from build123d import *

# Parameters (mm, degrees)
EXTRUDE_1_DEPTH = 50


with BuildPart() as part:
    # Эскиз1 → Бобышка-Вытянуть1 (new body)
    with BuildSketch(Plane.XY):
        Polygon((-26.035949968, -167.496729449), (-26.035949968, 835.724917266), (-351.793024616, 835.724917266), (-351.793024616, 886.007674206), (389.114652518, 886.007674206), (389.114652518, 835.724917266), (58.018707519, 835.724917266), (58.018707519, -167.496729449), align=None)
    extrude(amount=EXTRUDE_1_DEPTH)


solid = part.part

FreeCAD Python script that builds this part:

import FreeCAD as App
import Part
import Sketcher
Q = App.Units.Quantity

doc = App.newDocument("Part")
params = doc.addObject("Spreadsheet::Sheet", "Params")
for row, (alias, value) in enumerate([
    ("pad1_length", "50 mm"),
], start=1):
    params.set(f"A{row}", alias)
    params.set(f"B{row}", "=" + value)
    params.setAlias(f"B{row}", alias)

body = doc.addObject("PartDesign::Body", "Body")

# Sketch on XY plane
sketch1 = body.newObject("Sketcher::SketchObject", "Sketch")
sketch1.AttachmentSupport = (doc.getObject("XY_Plane"), [""])
sketch1.MapMode = "FlatFace"
sketch1.addGeometry([
    Part.LineSegment(App.Vector(-26, 836, 0), App.Vector(-26, -167, 0)),  # 0
    Part.LineSegment(App.Vector(-26, -167, 0), App.Vector(58, -167, 0)),  # 1
    Part.LineSegment(App.Vector(58, -167, 0), App.Vector(58, 836, 0)),  # 2
    Part.LineSegment(App.Vector(58, 836, 0), App.Vector(389, 836, 0)),  # 3
    Part.LineSegment(App.Vector(389, 836, 0), App.Vector(389, 886, 0)),  # 4
    Part.LineSegment(App.Vector(389, 886, 0), App.Vector(-352, 886, 0)),  # 5
    Part.LineSegment(App.Vector(-352, 886, 0), App.Vector(-352, 836, 0)),  # 6
    Part.LineSegment(App.Vector(-352, 836, 0), App.Vector(-26, 836, 0)),  # 7
], False)
sketch1.addConstraint([
    Sketcher.Constraint("Coincident", 0, 2, 1, 1),
    Sketcher.Constraint("Coincident", 1, 2, 2, 1),
    Sketcher.Constraint("Coincident", 2, 2, 3, 1),
    Sketcher.Constraint("Coincident", 3, 2, 4, 1),
    Sketcher.Constraint("Coincident", 4, 2, 5, 1),
    Sketcher.Constraint("Coincident", 5, 2, 6, 1),
    Sketcher.Constraint("Coincident", 6, 2, 7, 1),
    Sketcher.Constraint("Coincident", 7, 2, 0, 1),
    Sketcher.Constraint("Vertical", 0),
    Sketcher.Constraint("Horizontal", 1),
    Sketcher.Constraint("Vertical", 2),
    Sketcher.Constraint("Horizontal", 3),
    Sketcher.Constraint("Vertical", 4),
    Sketcher.Constraint("Horizontal", 5),
    Sketcher.Constraint("Vertical", 6),
    Sketcher.Constraint("Horizontal", 7),
    Sketcher.Constraint("Horizontal", 3, 2, 6, 2),
    Sketcher.Constraint("DistanceX", 1, 1, 1, 2, Q("84.054657 mm")),
    Sketcher.Constraint("DistanceX", 3, 1, 3, 2, Q("331.095945 mm")),
    Sketcher.Constraint("DistanceX", 5, 2, 5, 1, Q("740.907677 mm")),
    Sketcher.Constraint("DistanceY", 0, 2, 0, 1, Q("1003.221647 mm")),
    Sketcher.Constraint("DistanceY", 4, 1, 4, 2, Q("50.282757 mm")),
    Sketcher.Constraint("DistanceX", 0, 2, -1, 1, Q("26.03595 mm")),
    Sketcher.Constraint("DistanceY", 0, 2, -1, 1, Q("167.496729 mm")),
])
pad1 = body.newObject("PartDesign::Pad", "Pad")
pad1.Profile = sketch1
pad1.setExpression("Length", "Params.pad1_length")

doc.recompute()
